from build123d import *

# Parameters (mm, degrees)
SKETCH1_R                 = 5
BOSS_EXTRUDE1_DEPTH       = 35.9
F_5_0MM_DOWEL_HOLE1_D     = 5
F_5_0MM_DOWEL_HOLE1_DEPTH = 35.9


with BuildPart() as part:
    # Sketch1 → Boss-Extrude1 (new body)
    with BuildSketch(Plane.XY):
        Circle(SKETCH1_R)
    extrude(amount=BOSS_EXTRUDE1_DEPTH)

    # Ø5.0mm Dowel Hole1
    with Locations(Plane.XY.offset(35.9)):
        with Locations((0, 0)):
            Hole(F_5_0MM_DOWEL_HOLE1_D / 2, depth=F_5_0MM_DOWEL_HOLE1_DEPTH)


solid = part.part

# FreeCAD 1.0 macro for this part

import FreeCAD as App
import Part
import Sketcher

V = App.Vector
Q = App.Units.Quantity

doc = App.newDocument("Part")
params = doc.addObject("Spreadsheet::Sheet", "Params")
for row, (alias, value) in enumerate([
    ("sketch1_diameter", "10 mm"),
    ("pad1_length", "35.9 mm"),
    ("sketch2_diameter", "5 mm"),
    ("hole_diameter", "5 mm"),
    ("hole_depth", "35.9 mm"),
], start=1):
    params.set(f"A{row}", alias)
    params.set(f"B{row}", "=" + value)
    params.setAlias(f"B{row}", alias)

body = doc.addObject("PartDesign::Body", "Body")

# Sketch on XY plane
sketch1 = body.newObject("Sketcher::SketchObject", "Sketch")
sketch1.AttachmentSupport = (doc.getObject("XY_Plane"), [""])
sketch1.MapMode = "FlatFace"
sketch1.addGeometry(Part.Circle(V(0, 0, 0), V(0, 0, 1), 5), False)
sketch1.addConstraint([
    Sketcher.Constraint("Coincident", 0, 3, -1, 1),
    Sketcher.Constraint("Diameter", 0, Q("10 mm")),
])
sketch1.setExpression("Constraints[1]", "Params.sketch1_diameter")
pad1 = body.newObject("PartDesign::Pad", "Pad")
pad1.Profile = sketch1
pad1.setExpression("Length", "Params.pad1_length")

# Sketch on XY plane
sketch2 = body.newObject("Sketcher::SketchObject", "Sketch001")
sketch2.AttachmentSupport = (doc.getObject("XY_Plane"), [""])
sketch2.MapMode = "FlatFace"
sketch2.AttachmentOffset = App.Placement(V(0, 0, 35.9), App.Rotation())
sketch2.addGeometry(Part.Circle(V(0, 0, 0), V(0, 0, 1), 2.5), False)
sketch2.addConstraint([
    Sketcher.Constraint("Coincident", 0, 3, -1, 1),
    Sketcher.Constraint("Diameter", 0, Q("5 mm")),
])
sketch2.setExpression("Constraints[1]", "Params.sketch2_diameter")
doc.recompute()
hole = body.newObject("PartDesign::Hole", "Hole")
hole.Profile = sketch2
hole.ThreadType = "None"
hole.setExpression("Diameter", "Params.hole_diameter")
hole.DepthType = "Dimension"
hole.setExpression("Depth", "Params.hole_depth")
hole.DrillPoint = "Flat"

doc.recompute()
